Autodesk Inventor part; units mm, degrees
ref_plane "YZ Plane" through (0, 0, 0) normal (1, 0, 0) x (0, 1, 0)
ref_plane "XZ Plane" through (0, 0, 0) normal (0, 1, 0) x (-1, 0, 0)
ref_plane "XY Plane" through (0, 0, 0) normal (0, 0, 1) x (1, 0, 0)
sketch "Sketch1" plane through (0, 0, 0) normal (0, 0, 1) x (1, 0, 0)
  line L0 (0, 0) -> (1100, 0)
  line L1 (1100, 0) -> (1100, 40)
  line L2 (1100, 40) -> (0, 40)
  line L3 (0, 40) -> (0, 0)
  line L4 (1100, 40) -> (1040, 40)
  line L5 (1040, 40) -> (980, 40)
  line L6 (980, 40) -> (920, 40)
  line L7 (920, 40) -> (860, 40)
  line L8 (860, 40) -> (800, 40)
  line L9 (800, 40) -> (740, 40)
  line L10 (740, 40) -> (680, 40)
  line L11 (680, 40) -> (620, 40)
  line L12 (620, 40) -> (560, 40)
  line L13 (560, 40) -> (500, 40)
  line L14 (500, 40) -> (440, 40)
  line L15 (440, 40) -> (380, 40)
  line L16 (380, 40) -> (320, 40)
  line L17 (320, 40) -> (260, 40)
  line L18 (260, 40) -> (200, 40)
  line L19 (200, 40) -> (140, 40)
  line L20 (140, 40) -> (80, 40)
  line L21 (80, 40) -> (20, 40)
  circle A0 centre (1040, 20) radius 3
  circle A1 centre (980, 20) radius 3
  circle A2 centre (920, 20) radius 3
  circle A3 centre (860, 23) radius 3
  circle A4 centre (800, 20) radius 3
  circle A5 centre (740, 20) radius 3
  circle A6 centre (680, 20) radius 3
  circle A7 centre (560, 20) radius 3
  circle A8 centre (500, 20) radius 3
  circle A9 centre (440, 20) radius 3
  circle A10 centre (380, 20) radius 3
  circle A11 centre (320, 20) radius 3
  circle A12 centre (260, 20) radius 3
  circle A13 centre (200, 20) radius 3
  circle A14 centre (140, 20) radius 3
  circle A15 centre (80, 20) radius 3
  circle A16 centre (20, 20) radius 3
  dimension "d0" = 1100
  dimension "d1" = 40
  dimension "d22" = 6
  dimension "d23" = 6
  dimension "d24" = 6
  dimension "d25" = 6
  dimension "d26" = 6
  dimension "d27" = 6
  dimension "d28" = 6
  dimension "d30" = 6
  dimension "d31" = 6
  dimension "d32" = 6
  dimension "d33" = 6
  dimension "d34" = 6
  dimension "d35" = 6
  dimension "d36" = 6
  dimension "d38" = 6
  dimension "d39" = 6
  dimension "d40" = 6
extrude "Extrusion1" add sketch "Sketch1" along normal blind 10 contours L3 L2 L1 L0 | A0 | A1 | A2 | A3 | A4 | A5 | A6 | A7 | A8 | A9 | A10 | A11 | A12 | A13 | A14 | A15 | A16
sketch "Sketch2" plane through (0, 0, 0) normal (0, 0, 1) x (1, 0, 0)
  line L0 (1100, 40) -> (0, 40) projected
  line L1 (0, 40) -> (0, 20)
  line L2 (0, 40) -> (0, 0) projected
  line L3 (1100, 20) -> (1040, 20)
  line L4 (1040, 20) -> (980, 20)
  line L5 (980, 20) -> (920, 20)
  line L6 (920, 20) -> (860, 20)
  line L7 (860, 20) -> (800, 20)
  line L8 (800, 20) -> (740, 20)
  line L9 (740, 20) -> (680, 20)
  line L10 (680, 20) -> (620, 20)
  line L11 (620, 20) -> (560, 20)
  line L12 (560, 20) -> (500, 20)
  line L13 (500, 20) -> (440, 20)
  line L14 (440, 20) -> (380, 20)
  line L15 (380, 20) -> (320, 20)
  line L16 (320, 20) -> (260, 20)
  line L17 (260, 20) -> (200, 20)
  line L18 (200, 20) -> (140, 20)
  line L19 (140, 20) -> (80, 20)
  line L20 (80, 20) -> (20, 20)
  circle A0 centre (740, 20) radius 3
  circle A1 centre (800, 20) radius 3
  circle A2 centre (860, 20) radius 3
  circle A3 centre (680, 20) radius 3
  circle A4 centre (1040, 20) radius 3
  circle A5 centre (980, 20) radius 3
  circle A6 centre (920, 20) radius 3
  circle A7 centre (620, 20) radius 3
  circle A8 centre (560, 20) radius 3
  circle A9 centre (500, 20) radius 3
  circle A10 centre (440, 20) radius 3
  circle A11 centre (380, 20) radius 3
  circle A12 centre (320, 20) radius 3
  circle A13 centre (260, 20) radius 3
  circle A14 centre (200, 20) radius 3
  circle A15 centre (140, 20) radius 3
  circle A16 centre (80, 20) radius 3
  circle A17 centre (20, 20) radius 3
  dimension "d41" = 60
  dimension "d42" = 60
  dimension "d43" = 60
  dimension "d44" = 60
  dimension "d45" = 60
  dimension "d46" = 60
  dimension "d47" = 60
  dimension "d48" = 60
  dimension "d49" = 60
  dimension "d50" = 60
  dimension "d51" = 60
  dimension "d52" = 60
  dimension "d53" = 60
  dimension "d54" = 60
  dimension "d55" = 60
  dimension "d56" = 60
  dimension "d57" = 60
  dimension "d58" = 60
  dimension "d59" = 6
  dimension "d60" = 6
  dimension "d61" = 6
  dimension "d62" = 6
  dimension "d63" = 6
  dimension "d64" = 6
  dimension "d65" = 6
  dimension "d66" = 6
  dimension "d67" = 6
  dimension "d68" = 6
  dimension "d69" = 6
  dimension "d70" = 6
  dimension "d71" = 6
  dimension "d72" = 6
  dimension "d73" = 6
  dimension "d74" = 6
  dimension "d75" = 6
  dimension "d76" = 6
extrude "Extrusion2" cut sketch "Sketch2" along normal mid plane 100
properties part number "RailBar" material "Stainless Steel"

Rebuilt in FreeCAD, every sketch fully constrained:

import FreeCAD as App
import Part
import Sketcher
Q = App.Units.Quantity

doc = App.newDocument("Part")
params = doc.addObject("Spreadsheet::Sheet", "Params")
for row, (alias, value) in enumerate([
    ("sketch1_width", "1100 mm"),
    ("sketch1_height", "40 mm"),
    ("pad1_length", "10 mm"),
    ("sketch2_diameter", "6 mm"),
    ("pocket1_length", "100 mm"),
], start=1):
    params.set(f"A{row}", alias)
    params.set(f"B{row}", "=" + value)
    params.setAlias(f"B{row}", alias)

body = doc.addObject("PartDesign::Body", "Body")

sketch1 = doc.addObject("Sketcher::SketchObject", "Sketch")
body.addObject(sketch1)
sketch1.AttachmentSupport = (doc.XY_Plane, [""])
sketch1.MapMode = "FlatFace"
sketch1.addGeometry(Part.LineSegment(App.Vector(0, 40, 0), App.Vector(0, 0, 0)), False)
sketch1.addGeometry(Part.LineSegment(App.Vector(0, 0, 0), App.Vector(1100, 0, 0)), False)
sketch1.addGeometry(Part.LineSegment(App.Vector(1100, 0, 0), App.Vector(1100, 40, 0)), False)
sketch1.addGeometry(Part.LineSegment(App.Vector(1100, 40, 0), App.Vector(0, 40, 0)), False)
sketch1.addConstraint(Sketcher.Constraint("Coincident", 0, 2, 1, 1))
sketch1.addConstraint(Sketcher.Constraint("Coincident", 1, 2, 2, 1))
sketch1.addConstraint(Sketcher.Constraint("Coincident", 2, 2, 3, 1))
sketch1.addConstraint(Sketcher.Constraint("Coincident", 3, 2, 0, 1))
sketch1.addConstraint(Sketcher.Constraint("Vertical", 0))
sketch1.addConstraint(Sketcher.Constraint("Horizontal", 1))
sketch1.addConstraint(Sketcher.Constraint("Vertical", 2))
sketch1.addConstraint(Sketcher.Constraint("Horizontal", 3))
sketch1.addConstraint(Sketcher.Constraint("Coincident", 0, 2, -1, 1))
sketch1.addConstraint(Sketcher.Constraint("DistanceX", 1, 1, 1, 2, Q("1100 mm")))
sketch1.addConstraint(Sketcher.Constraint("DistanceY", 0, 2, 0, 1, Q("40 mm")))
sketch1.setExpression("Constraints[9]", "Params.sketch1_width")
sketch1.setExpression("Constraints[10]", "Params.sketch1_height")
pad1 = doc.addObject("PartDesign::Pad", "Pad")
body.addObject(pad1)
pad1.Profile = sketch1
pad1.setExpression("Length", "Params.pad1_length")

sketch2 = doc.addObject("Sketcher::SketchObject", "Sketch001")
body.addObject(sketch2)
sketch2.AttachmentSupport = (doc.XY_Plane, [""])
sketch2.MapMode = "FlatFace"
sketch2.addGeometry(Part.Circle(App.Vector(1040, 20, 0), App.Vector(0, 0, 1), 3), False)
sketch2.addGeometry(Part.Circle(App.Vector(20, 20, 0), App.Vector(0, 0, 1), 3), False)
sketch2.addGeometry(Part.Circle(App.Vector(80, 20, 0), App.Vector(0, 0, 1), 3), False)
sketch2.addGeometry(Part.Circle(App.Vector(140, 20, 0), App.Vector(0, 0, 1), 3), False)
sketch2.addGeometry(Part.Circle(App.Vector(200, 20, 0), App.Vector(0, 0, 1), 3), False)
sketch2.addGeometry(Part.Circle(App.Vector(260, 20, 0), App.Vector(0, 0, 1), 3), False)
sketch2.addGeometry(Part.Circle(App.Vector(320, 20, 0), App.Vector(0, 0, 1), 3), False)
sketch2.addGeometry(Part.Circle(App.Vector(380, 20, 0), App.Vector(0, 0, 1), 3), False)
sketch2.addGeometry(Part.Circle(App.Vector(440, 20, 0), App.Vector(0, 0, 1), 3), False)
sketch2.addGeometry(Part.Circle(App.Vector(500, 20, 0), App.Vector(0, 0, 1), 3), False)
sketch2.addGeometry(Part.Circle(App.Vector(560, 20, 0), App.Vector(0, 0, 1), 3), False)
sketch2.addGeometry(Part.Circle(App.Vector(620, 20, 0), App.Vector(0, 0, 1), 3), False)
sketch2.addGeometry(Part.Circle(App.Vector(680, 20, 0), App.Vector(0, 0, 1), 3), False)
sketch2.addGeometry(Part.Circle(App.Vector(740, 20, 0), App.Vector(0, 0, 1), 3), False)
sketch2.addGeometry(Part.Circle(App.Vector(800, 20, 0), App.Vector(0, 0, 1), 3), False)
sketch2.addGeometry(Part.Circle(App.Vector(860, 20, 0), App.Vector(0, 0, 1), 3), False)
sketch2.addGeometry(Part.Circle(App.Vector(920, 20, 0), App.Vector(0, 0, 1), 3), False)
sketch2.addGeometry(Part.Circle(App.Vector(980, 20, 0), App.Vector(0, 0, 1), 3), False)
sketch2.addConstraint(Sketcher.Constraint("Equal", 0, 1))
sketch2.addConstraint(Sketcher.Constraint("Equal", 1, 2))
sketch2.addConstraint(Sketcher.Constraint("Equal", 2, 3))
sketch2.addConstraint(Sketcher.Constraint("Equal", 3, 4))
sketch2.addConstraint(Sketcher.Constraint("Equal", 4, 5))
sketch2.addConstraint(Sketcher.Constraint("Equal", 5, 6))
sketch2.addConstraint(Sketcher.Constraint("Equal", 6, 7))
sketch2.addConstraint(Sketcher.Constraint("Equal", 7, 8))
sketch2.addConstraint(Sketcher.Constraint("Equal", 8, 9))
sketch2.addConstraint(Sketcher.Constraint("Equal", 9, 10))
sketch2.addConstraint(Sketcher.Constraint("Equal", 10, 11))
sketch2.addConstraint(Sketcher.Constraint("Equal", 11, 12))
sketch2.addConstraint(Sketcher.Constraint("Equal", 12, 13))
sketch2.addConstraint(Sketcher.Constraint("Equal", 13, 14))
sketch2.addConstraint(Sketcher.Constraint("Equal", 14, 15))
sketch2.addConstraint(Sketcher.Constraint("Equal", 15, 16))
sketch2.addConstraint(Sketcher.Constraint("Equal", 16, 17))
sketch2.addConstraint(Sketcher.Constraint("Horizontal", 0, 3, 1, 3))
sketch2.addConstraint(Sketcher.Constraint("Horizontal", 1, 3, 2, 3))
sketch2.addConstraint(Sketcher.Constraint("Horizontal", 2, 3, 3, 3))
sketch2.addConstraint(Sketcher.Constraint("Horizontal", 3, 3, 4, 3))
sketch2.addConstraint(Sketcher.Constraint("Horizontal", 4, 3, 5, 3))
sketch2.addConstraint(Sketcher.Constraint("Horizontal", 5, 3, 6, 3))
sketch2.addConstraint(Sketcher.Constraint("Horizontal", 6, 3, 7, 3))
sketch2.addConstraint(Sketcher.Constraint("Horizontal", 7, 3, 8, 3))
sketch2.addConstraint(Sketcher.Constraint("Horizontal", 8, 3, 9, 3))
sketch2.addConstraint(Sketcher.Constraint("Horizontal", 9, 3, 10, 3))
sketch2.addConstraint(Sketcher.Constraint("Horizontal", 10, 3, 11, 3))
sketch2.addConstraint(Sketcher.Constraint("Horizontal", 11, 3, 12, 3))
sketch2.addConstraint(Sketcher.Constraint("Horizontal", 12, 3, 13, 3))
sketch2.addConstraint(Sketcher.Constraint("Horizontal", 13, 3, 14, 3))
sketch2.addConstraint(Sketcher.Constraint("Horizontal", 14, 3, 15, 3))
sketch2.addConstraint(Sketcher.Constraint("Horizontal", 15, 3, 16, 3))
sketch2.addConstraint(Sketcher.Constraint("Horizontal", 16, 3, 17, 3))
sketch2.addConstraint(Sketcher.Constraint("Diameter", 0, Q("6 mm")))
sketch2.addConstraint(Sketcher.Constraint("DistanceX", 1, 3, 2, 3, Q("60 mm")))
sketch2.addConstraint(Sketcher.Constraint("DistanceX", 2, 3, 3, 3, Q("60 mm")))
sketch2.addConstraint(Sketcher.Constraint("DistanceX", 3, 3, 4, 3, Q("60 mm")))
sketch2.addConstraint(Sketcher.Constraint("DistanceX", 4, 3, 5, 3, Q("60 mm")))
sketch2.addConstraint(Sketcher.Constraint("DistanceX", 5, 3, 6, 3, Q("60 mm")))
sketch2.addConstraint(Sketcher.Constraint("DistanceX", 6, 3, 7, 3, Q("60 mm")))
sketch2.addConstraint(Sketcher.Constraint("DistanceX", 7, 3, 8, 3, Q("60 mm")))
sketch2.addConstraint(Sketcher.Constraint("DistanceX", 8, 3, 9, 3, Q("60 mm")))
sketch2.addConstraint(Sketcher.Constraint("DistanceX", 9, 3, 10, 3, Q("60 mm")))
sketch2.addConstraint(Sketcher.Constraint("DistanceX", 10, 3, 11, 3, Q("60 mm")))
sketch2.addConstraint(Sketcher.Constraint("DistanceX", 11, 3, 12, 3, Q("60 mm")))
sketch2.addConstraint(Sketcher.Constraint("DistanceX", 12, 3, 13, 3, Q("60 mm")))
sketch2.addConstraint(Sketcher.Constraint("DistanceX", 13, 3, 14, 3, Q("60 mm")))
sketch2.addConstraint(Sketcher.Constraint("DistanceX", 14, 3, 15, 3, Q("60 mm")))
sketch2.addConstraint(Sketcher.Constraint("DistanceX", 15, 3, 16, 3, Q("60 mm")))
sketch2.addConstraint(Sketcher.Constraint("DistanceX", 17, 3, 0, 3, Q("60 mm")))
sketch2.addConstraint(Sketcher.Constraint("DistanceX", 16, 3, 17, 3, Q("60 mm")))
sketch2.addConstraint(Sketcher.Constraint("DistanceX", -1, 1, 0, 3, Q("1040 mm")))
sketch2.addConstraint(Sketcher.Constraint("DistanceY", -1, 1, 0, 3, Q("20 mm")))
sketch2.setExpression("Constraints[34]", "Params.sketch2_diameter")
pocket1 = doc.addObject("PartDesign::Pocket", "Pocket")
body.addObject(pocket1)
pocket1.Profile = sketch2
pocket1.setExpression("Length", "Params.pocket1_length")
pocket1.Midplane = True

doc.recompute()
